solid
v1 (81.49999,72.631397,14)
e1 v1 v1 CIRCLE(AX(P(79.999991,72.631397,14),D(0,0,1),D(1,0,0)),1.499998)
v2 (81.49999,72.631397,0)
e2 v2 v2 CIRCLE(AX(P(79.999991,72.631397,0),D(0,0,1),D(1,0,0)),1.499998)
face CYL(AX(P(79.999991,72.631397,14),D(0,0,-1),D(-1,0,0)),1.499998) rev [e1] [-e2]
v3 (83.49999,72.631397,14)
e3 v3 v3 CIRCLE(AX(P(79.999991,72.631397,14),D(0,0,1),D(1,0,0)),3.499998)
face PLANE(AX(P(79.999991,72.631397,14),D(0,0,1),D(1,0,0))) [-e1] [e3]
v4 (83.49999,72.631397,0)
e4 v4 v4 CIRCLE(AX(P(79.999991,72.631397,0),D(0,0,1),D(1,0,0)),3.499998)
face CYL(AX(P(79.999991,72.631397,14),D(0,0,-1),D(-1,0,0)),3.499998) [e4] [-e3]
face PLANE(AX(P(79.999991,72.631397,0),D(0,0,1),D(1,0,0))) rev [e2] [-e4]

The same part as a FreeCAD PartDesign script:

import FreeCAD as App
import Part
import Sketcher

doc = App.newDocument("Part")
body = doc.addObject("PartDesign::Body", "Body")

# Sketch on XY plane
sketch1 = doc.addObject("Sketcher::SketchObject", "Sketch")
body.addObject(sketch1)
sketch1.AttachmentSupport = (doc.XY_Plane, [""])
sketch1.MapMode = "FlatFace"
sketch1.addGeometry(Part.Circle(App.Vector(80, 72.6, 0), App.Vector(0, 0, 1), 3.5), False)
sketch1.addGeometry(Part.Circle(App.Vector(80, 72.6, 0), App.Vector(0, 0, 1), 1.5), False)
sketch1.addConstraint(Sketcher.Constraint("Coincident", 1, 3, 0, 3))
sketch1.addConstraint(Sketcher.Constraint("Diameter", 0, 6.999996))
sketch1.addConstraint(Sketcher.Constraint("Diameter", 1, 2.999996))
sketch1.addConstraint(Sketcher.Constraint("DistanceX", -1, 1, 0, 3, 79.999991))
sketch1.addConstraint(Sketcher.Constraint("DistanceY", -1, 1, 0, 3, 72.631397))
pad1 = doc.addObject("PartDesign::Pad", "Pad")
body.addObject(pad1)
pad1.Profile = sketch1
pad1.Length = 14

doc.recompute()
